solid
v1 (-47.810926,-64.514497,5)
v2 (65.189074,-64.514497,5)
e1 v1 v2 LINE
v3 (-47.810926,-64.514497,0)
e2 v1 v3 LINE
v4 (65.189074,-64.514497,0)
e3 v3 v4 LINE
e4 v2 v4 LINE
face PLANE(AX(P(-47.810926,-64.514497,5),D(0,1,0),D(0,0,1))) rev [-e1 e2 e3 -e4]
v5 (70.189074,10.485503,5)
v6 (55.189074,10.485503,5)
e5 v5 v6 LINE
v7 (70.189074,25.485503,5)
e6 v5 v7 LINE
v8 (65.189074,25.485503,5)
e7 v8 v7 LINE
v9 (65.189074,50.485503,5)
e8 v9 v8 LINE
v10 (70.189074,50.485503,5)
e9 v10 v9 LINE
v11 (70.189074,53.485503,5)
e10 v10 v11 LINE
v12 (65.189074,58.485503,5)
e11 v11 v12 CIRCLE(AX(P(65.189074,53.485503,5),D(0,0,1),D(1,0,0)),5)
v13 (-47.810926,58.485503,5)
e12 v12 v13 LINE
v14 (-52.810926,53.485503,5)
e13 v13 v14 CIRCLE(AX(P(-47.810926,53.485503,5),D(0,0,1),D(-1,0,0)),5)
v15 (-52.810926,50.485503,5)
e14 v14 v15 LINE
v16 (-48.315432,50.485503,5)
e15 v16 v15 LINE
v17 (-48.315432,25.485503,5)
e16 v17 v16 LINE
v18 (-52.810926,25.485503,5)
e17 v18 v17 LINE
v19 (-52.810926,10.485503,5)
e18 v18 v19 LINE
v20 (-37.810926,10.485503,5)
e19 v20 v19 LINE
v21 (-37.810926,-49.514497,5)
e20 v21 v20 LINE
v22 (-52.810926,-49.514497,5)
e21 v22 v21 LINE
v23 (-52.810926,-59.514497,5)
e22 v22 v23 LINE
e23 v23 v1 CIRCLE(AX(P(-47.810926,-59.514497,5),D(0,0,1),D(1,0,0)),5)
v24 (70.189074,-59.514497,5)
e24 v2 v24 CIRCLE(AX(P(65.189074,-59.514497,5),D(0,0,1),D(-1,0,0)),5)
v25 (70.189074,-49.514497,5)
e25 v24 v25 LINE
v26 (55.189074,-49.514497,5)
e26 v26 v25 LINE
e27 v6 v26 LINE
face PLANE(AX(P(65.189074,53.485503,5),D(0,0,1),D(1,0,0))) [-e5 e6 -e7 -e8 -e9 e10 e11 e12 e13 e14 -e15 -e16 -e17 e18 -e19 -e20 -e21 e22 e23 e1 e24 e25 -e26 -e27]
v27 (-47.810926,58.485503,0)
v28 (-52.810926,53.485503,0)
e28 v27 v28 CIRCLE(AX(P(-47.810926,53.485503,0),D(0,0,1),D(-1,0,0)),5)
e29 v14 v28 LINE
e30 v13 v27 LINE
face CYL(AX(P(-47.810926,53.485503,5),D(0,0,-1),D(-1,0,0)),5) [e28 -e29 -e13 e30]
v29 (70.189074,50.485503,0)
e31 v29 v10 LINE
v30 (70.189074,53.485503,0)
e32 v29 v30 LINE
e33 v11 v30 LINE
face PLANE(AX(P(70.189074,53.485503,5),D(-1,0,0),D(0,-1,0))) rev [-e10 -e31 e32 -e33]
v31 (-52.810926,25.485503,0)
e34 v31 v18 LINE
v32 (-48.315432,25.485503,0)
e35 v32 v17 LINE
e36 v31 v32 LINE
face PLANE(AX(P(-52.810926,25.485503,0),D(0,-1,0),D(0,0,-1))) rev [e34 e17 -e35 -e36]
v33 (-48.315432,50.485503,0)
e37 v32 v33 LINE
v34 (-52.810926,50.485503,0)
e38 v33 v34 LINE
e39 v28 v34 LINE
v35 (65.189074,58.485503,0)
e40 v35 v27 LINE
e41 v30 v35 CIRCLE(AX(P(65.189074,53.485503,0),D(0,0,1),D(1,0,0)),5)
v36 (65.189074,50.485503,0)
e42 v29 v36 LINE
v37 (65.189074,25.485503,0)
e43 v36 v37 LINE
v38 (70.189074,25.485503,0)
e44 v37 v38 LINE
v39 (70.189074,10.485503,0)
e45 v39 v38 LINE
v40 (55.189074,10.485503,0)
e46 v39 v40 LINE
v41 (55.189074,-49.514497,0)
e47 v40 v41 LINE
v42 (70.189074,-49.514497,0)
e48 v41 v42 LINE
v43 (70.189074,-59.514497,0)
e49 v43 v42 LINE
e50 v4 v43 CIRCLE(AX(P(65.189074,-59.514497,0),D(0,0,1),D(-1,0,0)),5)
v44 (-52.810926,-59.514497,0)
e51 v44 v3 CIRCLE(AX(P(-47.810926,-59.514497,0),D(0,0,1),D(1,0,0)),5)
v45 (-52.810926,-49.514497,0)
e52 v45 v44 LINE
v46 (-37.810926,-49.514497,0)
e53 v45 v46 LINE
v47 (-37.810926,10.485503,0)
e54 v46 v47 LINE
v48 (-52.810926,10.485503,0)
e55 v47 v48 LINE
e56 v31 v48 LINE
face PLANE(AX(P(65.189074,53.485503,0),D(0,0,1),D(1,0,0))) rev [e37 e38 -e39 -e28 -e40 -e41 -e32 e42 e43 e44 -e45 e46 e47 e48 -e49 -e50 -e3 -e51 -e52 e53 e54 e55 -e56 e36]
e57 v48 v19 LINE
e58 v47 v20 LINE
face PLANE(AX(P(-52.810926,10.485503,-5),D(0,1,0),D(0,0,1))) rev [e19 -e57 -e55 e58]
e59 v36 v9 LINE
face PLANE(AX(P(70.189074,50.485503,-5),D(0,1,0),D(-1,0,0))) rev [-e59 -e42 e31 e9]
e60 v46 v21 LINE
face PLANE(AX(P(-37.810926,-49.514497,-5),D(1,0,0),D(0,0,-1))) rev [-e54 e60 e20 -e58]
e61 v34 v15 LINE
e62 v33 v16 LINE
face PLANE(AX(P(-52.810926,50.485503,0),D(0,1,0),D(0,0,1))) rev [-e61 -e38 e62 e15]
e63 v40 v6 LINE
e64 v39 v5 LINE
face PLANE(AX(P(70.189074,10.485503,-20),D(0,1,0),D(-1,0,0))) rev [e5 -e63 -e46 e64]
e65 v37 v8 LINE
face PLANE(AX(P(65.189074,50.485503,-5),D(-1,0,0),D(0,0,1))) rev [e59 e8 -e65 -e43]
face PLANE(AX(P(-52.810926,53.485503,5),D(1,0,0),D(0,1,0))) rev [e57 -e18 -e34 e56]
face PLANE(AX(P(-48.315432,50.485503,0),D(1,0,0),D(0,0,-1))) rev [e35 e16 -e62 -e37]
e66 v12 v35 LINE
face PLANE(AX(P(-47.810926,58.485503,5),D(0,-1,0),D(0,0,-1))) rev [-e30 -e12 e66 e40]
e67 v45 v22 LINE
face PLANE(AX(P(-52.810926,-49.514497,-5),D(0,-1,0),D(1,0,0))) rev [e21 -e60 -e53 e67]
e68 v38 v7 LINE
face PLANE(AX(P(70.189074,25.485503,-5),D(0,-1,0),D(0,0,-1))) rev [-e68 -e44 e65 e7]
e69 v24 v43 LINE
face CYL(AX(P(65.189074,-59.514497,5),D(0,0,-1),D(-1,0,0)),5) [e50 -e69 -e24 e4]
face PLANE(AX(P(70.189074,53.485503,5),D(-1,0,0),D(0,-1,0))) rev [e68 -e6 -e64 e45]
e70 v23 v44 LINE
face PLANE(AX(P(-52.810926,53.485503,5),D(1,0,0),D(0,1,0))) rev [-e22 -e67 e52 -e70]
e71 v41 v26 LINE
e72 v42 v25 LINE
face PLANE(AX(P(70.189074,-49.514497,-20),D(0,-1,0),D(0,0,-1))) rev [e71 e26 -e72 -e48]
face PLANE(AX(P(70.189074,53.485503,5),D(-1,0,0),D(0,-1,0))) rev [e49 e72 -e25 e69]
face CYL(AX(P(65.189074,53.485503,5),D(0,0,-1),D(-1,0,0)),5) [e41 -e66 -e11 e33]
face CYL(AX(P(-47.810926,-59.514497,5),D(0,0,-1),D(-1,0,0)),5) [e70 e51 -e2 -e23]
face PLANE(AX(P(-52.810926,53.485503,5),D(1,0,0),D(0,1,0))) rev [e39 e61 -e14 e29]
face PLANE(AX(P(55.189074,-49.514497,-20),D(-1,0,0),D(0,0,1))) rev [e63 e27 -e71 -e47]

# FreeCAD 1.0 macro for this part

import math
import FreeCAD as App
import Part
import Sketcher
Q = App.Units.Quantity


def add_polygon(sketch, points):
    """Adds a closed chain of lines whose ends are joined by coincident constraints."""
    first, n = sketch.GeometryCount, len(points)
    for a, b in zip(points, points[1:] + points[:1]):
        sketch.addGeometry(Part.LineSegment(App.Vector(*a, 0), App.Vector(*b, 0)), False)
    for i in range(n):
        sketch.addConstraint(Sketcher.Constraint("Coincident", first + i, 2, first + (i + 1) % n, 1))

doc = App.newDocument("Part")
body = doc.addObject("PartDesign::Body", "Body")

# Sketch on XY plane
sketch1 = body.newObject("Sketcher::SketchObject", "Sketch")
sketch1.AttachmentSupport = (doc.getObject("XY_Plane"), [""])
sketch1.MapMode = "FlatFace"
sketch1.addGeometry(Part.LineSegment(App.Vector(65, 58, 0), App.Vector(-48, 58, 0)), False)
sketch1.addGeometry(Part.ArcOfCircle(Part.Circle(App.Vector(-48, 53, 0), App.Vector(0, 0, 1), 5), math.radians(90), math.radians(180)), False)
sketch1.addGeometry(Part.LineSegment(App.Vector(-53, 53, 0), App.Vector(-53, -60, 0)), False)
sketch1.addGeometry(Part.ArcOfCircle(Part.Circle(App.Vector(-48, -60, 0), App.Vector(0, 0, 1), 5), math.radians(180), math.radians(270)), False)
sketch1.addGeometry(Part.LineSegment(App.Vector(-48, -65, 0), App.Vector(65, -65, 0)), False)
sketch1.addGeometry(Part.ArcOfCircle(Part.Circle(App.Vector(65, -60, 0), App.Vector(0, 0, 1), 5), math.radians(-90), math.radians(0)), False)
sketch1.addGeometry(Part.LineSegment(App.Vector(70, -60, 0), App.Vector(70, 53, 0)), False)
sketch1.addGeometry(Part.ArcOfCircle(Part.Circle(App.Vector(65, 53, 0), App.Vector(0, 0, 1), 5), math.radians(0), math.radians(90)), False)
sketch1.addConstraint(Sketcher.Constraint("Tangent", 0, 2, 1, 1))
sketch1.addConstraint(Sketcher.Constraint("Tangent", 1, 2, 2, 1))
sketch1.addConstraint(Sketcher.Constraint("Tangent", 2, 2, 3, 1))
sketch1.addConstraint(Sketcher.Constraint("Tangent", 3, 2, 4, 1))
sketch1.addConstraint(Sketcher.Constraint("Tangent", 4, 2, 5, 1))
sketch1.addConstraint(Sketcher.Constraint("Tangent", 5, 2, 6, 1))
sketch1.addConstraint(Sketcher.Constraint("Tangent", 6, 2, 7, 1))
sketch1.addConstraint(Sketcher.Constraint("Tangent", 7, 2, 0, 1))
sketch1.addConstraint(Sketcher.Constraint("Horizontal", 0))
sketch1.addConstraint(Sketcher.Constraint("Vertical", 2))
sketch1.addConstraint(Sketcher.Constraint("Horizontal", 4))
sketch1.addConstraint(Sketcher.Constraint("Vertical", 6))
sketch1.addConstraint(Sketcher.Constraint("Equal", 1, 3))
sketch1.addConstraint(Sketcher.Constraint("Equal", 3, 5))
sketch1.addConstraint(Sketcher.Constraint("Equal", 5, 7))
sketch1.addConstraint(Sketcher.Constraint("Equal", 4, 2))
sketch1.addConstraint(Sketcher.Constraint("Radius", 1, Q("5 mm")))
sketch1.addConstraint(Sketcher.Constraint("DistanceX", 0, 2, 0, 1, Q("113 mm")))
sketch1.addConstraint(Sketcher.Constraint("DistanceX", 1, 3, -1, 1, Q("47.810926 mm")))
sketch1.addConstraint(Sketcher.Constraint("DistanceY", -1, 1, 1, 3, Q("53.485503 mm")))
pad1 = body.newObject("PartDesign::Pad", "Pad")
pad1.Profile = sketch1
pad1.Length = 5

# Sketch on XY plane
sketch2 = body.newObject("Sketcher::SketchObject", "Sketch001")
sketch2.AttachmentSupport = (doc.getObject("XY_Plane"), [""])
sketch2.MapMode = "FlatFace"
sketch2.AttachmentOffset = App.Placement(App.Vector(0, 0, 5), App.Rotation())
add_polygon(sketch2, [(-52.8, 50.5), (-52.8, 25.5), (-48.3, 25.5), (-48.3, 50.5)])  # lines 0-3
sketch2.addConstraint(Sketcher.Constraint("Vertical", 0))
sketch2.addConstraint(Sketcher.Constraint("Horizontal", 1))
sketch2.addConstraint(Sketcher.Constraint("Vertical", 2))
sketch2.addConstraint(Sketcher.Constraint("Horizontal", 3))
sketch2.addConstraint(Sketcher.Constraint("DistanceY", 0, 2, 0, 1, Q("25 mm")))
sketch2.addConstraint(Sketcher.Constraint("DistanceX", 1, 1, 1, 2, Q("4.495494 mm")))
sketch2.addConstraint(Sketcher.Constraint("DistanceX", 1, 2, -1, 1, Q("48.315432 mm")))
sketch2.addConstraint(Sketcher.Constraint("DistanceY", -1, 1, 0, 2, Q("25.485503 mm")))
pocket1 = body.newObject("PartDesign::Pocket", "Pocket")
pocket1.Profile = sketch2
pocket1.Length = 5

# Sketch on XY plane
sketch3 = body.newObject("Sketcher::SketchObject", "Sketch002")
sketch3.AttachmentSupport = (doc.getObject("XY_Plane"), [""])
sketch3.MapMode = "FlatFace"
sketch3.AttachmentOffset = App.Placement(App.Vector(0, 0, 5), App.Rotation())
add_polygon(sketch3, [(65, 50), (65, 25), (70, 25), (70, 50)])  # lines 0-3
sketch3.addConstraint(Sketcher.Constraint("Vertical", 0))
sketch3.addConstraint(Sketcher.Constraint("Horizontal", 1))
sketch3.addConstraint(Sketcher.Constraint("Vertical", 2))
sketch3.addConstraint(Sketcher.Constraint("Horizontal", 3))
sketch3.addConstraint(Sketcher.Constraint("DistanceX", 1, 1, 1, 2, Q("5 mm")))
sketch3.addConstraint(Sketcher.Constraint("DistanceY", 0, 2, 0, 1, Q("25 mm")))
sketch3.addConstraint(Sketcher.Constraint("DistanceX", -1, 1, 0, 2, Q("65.189074 mm")))
sketch3.addConstraint(Sketcher.Constraint("DistanceY", -1, 1, 0, 2, Q("25.485503 mm")))
pocket2 = body.newObject("PartDesign::Pocket", "Pocket001")
pocket2.Profile = sketch3
pocket2.Length = 10

# Sketch on XY plane
sketch4 = body.newObject("Sketcher::SketchObject", "Sketch003")
sketch4.AttachmentSupport = (doc.getObject("XY_Plane"), [""])
sketch4.MapMode = "FlatFace"
sketch4.AttachmentOffset = App.Placement(App.Vector(0, 0, 5), App.Rotation())
add_polygon(sketch4, [(-53, 10), (-53, -50), (-38, -50), (-38, 10)])  # lines 0-3
sketch4.addConstraint(Sketcher.Constraint("Vertical", 0))
sketch4.addConstraint(Sketcher.Constraint("Horizontal", 1))
sketch4.addConstraint(Sketcher.Constraint("Vertical", 2))
sketch4.addConstraint(Sketcher.Constraint("Horizontal", 3))
sketch4.addConstraint(Sketcher.Constraint("DistanceX", 1, 1, 1, 2, Q("15 mm")))
sketch4.addConstraint(Sketcher.Constraint("DistanceY", 0, 2, 0, 1, Q("60 mm")))
sketch4.addConstraint(Sketcher.Constraint("DistanceX", 0, 2, -1, 1, Q("52.810926 mm")))
sketch4.addConstraint(Sketcher.Constraint("DistanceY", 0, 2, -1, 1, Q("49.514497 mm")))
pocket3 = body.newObject("PartDesign::Pocket", "Pocket002")
pocket3.Profile = sketch4
pocket3.Length = 10

# Sketch on XY plane
sketch5 = body.newObject("Sketcher::SketchObject", "Sketch004")
sketch5.AttachmentSupport = (doc.getObject("XY_Plane"), [""])
sketch5.MapMode = "FlatFace"
sketch5.AttachmentOffset = App.Placement(App.Vector(0, 0, 5), App.Rotation())
add_polygon(sketch5, [(55, 10), (55, -50), (70, -50), (70, 10)])  # lines 0-3
sketch5.addConstraint(Sketcher.Constraint("Vertical", 0))
sketch5.addConstraint(Sketcher.Constraint("Horizontal", 1))
sketch5.addConstraint(Sketcher.Constraint("Vertical", 2))
sketch5.addConstraint(Sketcher.Constraint("Horizontal", 3))
sketch5.addConstraint(Sketcher.Constraint("DistanceX", 1, 1, 1, 2, Q("15 mm")))
sketch5.addConstraint(Sketcher.Constraint("DistanceY", 0, 2, 0, 1, Q("60 mm")))
sketch5.addConstraint(Sketcher.Constraint("DistanceX", -1, 1, 0, 2, Q("55.189074 mm")))
sketch5.addConstraint(Sketcher.Constraint("DistanceY", 0, 2, -1, 1, Q("49.514497 mm")))
pocket4 = body.newObject("PartDesign::Pocket", "Pocket003")
pocket4.Profile = sketch5
pocket4.Length = 25

doc.recompute()
